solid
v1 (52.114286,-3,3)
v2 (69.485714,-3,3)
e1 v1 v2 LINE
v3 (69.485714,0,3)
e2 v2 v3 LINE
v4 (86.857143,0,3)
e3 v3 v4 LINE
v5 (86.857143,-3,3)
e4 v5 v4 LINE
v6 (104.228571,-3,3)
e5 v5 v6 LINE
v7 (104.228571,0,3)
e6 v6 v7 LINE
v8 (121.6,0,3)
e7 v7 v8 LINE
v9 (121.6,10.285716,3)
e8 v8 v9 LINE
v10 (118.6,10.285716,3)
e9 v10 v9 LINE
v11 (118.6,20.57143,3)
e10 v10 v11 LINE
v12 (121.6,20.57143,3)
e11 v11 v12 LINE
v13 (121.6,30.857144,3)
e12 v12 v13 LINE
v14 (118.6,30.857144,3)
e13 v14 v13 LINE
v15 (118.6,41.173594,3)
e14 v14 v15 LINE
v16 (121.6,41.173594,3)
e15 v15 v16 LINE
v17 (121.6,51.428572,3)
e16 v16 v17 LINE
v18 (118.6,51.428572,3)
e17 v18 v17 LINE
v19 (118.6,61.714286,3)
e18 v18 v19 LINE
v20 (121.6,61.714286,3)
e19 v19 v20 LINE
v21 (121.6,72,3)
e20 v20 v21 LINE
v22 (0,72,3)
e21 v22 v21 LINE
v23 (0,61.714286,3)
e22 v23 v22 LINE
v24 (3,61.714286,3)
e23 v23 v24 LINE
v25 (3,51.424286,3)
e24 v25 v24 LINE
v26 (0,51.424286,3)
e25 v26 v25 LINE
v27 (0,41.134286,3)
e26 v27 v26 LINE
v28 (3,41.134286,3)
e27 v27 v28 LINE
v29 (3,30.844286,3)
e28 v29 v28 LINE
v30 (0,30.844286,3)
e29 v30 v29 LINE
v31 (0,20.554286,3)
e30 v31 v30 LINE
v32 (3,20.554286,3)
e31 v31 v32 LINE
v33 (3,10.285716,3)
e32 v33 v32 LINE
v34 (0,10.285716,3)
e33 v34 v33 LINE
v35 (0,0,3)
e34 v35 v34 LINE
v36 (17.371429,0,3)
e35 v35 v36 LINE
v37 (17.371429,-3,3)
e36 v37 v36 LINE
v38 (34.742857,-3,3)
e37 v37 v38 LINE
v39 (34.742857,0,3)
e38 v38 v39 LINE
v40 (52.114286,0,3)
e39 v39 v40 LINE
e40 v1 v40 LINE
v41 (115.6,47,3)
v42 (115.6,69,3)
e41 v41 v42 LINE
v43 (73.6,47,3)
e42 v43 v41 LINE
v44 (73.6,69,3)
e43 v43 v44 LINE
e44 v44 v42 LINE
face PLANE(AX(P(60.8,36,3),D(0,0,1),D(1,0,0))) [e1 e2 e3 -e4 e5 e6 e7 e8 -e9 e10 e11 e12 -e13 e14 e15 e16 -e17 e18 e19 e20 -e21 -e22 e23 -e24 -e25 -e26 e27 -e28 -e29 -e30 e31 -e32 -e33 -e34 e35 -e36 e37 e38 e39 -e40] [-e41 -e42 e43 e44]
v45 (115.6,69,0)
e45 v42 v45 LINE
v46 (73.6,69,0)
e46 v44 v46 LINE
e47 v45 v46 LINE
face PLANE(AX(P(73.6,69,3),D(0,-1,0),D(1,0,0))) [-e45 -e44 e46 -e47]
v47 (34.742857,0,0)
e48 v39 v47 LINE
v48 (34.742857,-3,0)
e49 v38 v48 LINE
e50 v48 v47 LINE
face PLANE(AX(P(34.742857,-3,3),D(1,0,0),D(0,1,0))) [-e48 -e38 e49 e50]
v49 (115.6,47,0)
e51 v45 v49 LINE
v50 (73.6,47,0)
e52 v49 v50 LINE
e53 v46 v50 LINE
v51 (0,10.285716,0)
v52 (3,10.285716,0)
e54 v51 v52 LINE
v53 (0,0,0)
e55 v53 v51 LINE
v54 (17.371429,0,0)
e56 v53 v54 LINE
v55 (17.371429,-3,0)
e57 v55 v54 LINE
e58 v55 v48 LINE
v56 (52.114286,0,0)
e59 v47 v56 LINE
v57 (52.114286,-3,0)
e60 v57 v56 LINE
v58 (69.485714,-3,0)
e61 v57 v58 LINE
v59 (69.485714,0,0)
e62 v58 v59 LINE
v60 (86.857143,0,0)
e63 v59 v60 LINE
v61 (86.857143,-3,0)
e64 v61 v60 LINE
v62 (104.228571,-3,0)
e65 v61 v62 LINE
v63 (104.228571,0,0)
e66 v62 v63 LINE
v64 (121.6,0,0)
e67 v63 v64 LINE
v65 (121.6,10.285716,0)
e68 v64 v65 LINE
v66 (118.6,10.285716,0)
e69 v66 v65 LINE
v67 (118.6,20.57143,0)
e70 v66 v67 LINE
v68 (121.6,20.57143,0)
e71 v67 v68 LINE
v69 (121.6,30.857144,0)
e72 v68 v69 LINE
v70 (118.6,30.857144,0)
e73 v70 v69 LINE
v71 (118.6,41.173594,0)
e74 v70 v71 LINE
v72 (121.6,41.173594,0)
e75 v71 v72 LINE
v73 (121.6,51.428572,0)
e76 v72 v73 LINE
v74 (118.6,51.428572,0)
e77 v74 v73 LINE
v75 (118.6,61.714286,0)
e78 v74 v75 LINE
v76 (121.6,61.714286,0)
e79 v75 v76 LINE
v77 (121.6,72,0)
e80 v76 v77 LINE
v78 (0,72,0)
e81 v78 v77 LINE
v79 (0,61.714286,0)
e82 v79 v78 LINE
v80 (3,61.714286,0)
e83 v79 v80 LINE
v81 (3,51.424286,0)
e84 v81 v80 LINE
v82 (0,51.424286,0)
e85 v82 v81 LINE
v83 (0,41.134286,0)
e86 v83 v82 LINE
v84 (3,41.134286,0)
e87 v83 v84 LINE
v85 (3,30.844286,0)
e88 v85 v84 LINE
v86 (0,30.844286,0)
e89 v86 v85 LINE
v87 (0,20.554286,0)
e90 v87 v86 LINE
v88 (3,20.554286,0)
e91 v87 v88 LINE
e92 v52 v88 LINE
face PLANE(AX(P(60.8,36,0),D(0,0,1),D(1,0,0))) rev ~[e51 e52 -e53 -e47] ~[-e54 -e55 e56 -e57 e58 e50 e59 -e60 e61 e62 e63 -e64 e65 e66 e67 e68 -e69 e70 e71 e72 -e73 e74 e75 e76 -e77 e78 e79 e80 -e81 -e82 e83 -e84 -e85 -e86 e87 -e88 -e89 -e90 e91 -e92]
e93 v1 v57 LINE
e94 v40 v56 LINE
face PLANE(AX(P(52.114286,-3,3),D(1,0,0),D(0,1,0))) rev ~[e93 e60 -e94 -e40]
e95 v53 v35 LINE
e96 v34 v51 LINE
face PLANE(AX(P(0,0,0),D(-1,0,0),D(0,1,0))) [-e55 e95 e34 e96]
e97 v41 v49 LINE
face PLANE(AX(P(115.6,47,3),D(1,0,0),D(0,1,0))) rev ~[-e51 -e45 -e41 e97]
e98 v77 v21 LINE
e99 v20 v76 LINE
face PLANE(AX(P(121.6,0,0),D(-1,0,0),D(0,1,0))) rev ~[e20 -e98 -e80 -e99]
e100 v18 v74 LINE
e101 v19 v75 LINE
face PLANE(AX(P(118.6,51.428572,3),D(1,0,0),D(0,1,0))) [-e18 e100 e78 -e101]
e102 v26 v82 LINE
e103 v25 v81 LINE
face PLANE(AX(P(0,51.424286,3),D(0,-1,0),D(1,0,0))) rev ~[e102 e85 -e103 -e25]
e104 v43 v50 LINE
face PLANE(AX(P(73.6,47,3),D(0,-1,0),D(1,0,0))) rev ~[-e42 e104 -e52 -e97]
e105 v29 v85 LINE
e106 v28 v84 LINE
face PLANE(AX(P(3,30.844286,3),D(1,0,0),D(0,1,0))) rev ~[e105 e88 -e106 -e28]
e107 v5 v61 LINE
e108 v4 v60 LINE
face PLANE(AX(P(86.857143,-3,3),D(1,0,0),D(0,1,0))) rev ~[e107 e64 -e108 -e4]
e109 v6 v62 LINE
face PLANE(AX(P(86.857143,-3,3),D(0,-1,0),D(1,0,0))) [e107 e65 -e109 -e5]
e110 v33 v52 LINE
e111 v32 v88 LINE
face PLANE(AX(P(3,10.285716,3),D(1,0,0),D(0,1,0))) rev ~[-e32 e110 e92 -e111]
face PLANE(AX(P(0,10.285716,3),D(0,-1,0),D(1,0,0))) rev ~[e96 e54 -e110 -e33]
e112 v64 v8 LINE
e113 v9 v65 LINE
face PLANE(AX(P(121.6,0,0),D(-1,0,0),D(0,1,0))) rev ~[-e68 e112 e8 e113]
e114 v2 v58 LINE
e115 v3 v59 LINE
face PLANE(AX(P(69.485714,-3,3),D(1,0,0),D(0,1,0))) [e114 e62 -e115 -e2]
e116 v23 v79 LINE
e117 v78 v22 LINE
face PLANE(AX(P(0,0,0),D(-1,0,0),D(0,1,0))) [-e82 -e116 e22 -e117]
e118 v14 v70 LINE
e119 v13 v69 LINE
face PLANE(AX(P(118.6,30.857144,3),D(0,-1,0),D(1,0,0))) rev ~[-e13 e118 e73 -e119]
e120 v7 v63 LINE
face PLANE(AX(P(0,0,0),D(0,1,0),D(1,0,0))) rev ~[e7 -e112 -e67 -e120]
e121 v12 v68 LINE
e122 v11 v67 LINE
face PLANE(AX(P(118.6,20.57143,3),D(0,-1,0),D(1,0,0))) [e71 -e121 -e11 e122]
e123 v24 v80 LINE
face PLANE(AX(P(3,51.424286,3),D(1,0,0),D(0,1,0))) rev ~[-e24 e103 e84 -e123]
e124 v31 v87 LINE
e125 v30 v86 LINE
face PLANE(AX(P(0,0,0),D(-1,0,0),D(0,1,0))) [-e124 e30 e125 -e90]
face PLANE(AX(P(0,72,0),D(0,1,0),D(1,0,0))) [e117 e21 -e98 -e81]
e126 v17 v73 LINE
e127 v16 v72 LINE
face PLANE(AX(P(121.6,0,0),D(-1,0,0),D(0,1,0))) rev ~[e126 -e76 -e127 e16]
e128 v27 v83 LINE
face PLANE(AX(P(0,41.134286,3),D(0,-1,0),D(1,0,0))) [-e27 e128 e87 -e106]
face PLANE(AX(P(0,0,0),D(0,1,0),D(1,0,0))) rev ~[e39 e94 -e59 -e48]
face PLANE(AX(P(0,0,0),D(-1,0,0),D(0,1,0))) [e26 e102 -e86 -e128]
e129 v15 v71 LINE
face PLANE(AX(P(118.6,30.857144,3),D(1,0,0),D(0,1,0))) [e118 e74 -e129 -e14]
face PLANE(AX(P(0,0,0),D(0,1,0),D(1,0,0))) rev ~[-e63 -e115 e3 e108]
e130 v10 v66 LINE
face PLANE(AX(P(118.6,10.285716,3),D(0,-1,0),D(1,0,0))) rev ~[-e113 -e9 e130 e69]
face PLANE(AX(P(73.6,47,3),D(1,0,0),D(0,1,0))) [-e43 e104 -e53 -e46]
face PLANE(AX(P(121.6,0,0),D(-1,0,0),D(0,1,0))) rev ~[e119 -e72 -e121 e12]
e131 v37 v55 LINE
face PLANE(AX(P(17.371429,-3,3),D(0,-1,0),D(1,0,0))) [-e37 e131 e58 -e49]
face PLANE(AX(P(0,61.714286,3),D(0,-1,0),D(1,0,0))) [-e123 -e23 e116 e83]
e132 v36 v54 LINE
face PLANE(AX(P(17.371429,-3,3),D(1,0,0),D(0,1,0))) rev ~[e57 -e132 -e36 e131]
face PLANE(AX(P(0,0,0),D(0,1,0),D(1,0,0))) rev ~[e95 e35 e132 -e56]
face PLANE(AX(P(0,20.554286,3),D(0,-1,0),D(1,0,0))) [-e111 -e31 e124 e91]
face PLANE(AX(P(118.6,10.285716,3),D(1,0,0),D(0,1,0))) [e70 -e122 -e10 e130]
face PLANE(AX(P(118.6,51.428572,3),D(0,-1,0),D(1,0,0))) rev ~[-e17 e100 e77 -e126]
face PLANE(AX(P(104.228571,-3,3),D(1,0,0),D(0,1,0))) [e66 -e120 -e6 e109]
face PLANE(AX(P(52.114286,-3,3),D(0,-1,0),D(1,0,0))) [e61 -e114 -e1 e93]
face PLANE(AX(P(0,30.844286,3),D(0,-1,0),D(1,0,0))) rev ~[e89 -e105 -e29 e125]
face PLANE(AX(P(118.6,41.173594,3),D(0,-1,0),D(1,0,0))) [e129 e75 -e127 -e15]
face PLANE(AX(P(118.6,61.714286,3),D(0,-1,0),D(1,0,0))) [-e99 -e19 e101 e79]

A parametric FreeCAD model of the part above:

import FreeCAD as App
import Part
import Sketcher
from FreeCAD import Vector
Q = App.Units.Quantity


def add_polygon(sketch, points):
    """Adds a closed chain of lines whose ends are joined by coincident constraints."""
    first, n = sketch.GeometryCount, len(points)
    for a, b in zip(points, points[1:] + points[:1]):
        sketch.addGeometry(Part.LineSegment(App.Vector(*a, 0), App.Vector(*b, 0)), False)
    for i in range(n):
        sketch.addConstraint(Sketcher.Constraint("Coincident", first + i, 2, first + (i + 1) % n, 1))

doc = App.newDocument("Part")
body = doc.addObject("PartDesign::Body", "Body")

sketch1 = doc.addObject("Sketcher::SketchObject", "Sketch")
body.addObject(sketch1)
sketch1.AttachmentSupport = (doc.XY_Plane, [""])
sketch1.MapMode = "FlatFace"
add_polygon(sketch1, [(0, 72), (0, 0), (122, 0), (122, 72)])
sketch1.addConstraint([
    Sketcher.Constraint("Vertical", 0),
    Sketcher.Constraint("Horizontal", 1),
    Sketcher.Constraint("Vertical", 2),
    Sketcher.Constraint("Horizontal", 3),
    Sketcher.Constraint("Coincident", 0, 2, -1, 1),
    Sketcher.Constraint("DistanceY", 0, 2, 0, 1, Q("72 mm")),
    Sketcher.Constraint("DistanceX", 1, 1, 1, 2, Q("121.6 mm")),
])
pad1 = doc.addObject("PartDesign::Pad", "Pad")
body.addObject(pad1)
pad1.Profile = sketch1
pad1.Length = 3

sketch2 = doc.addObject("Sketcher::SketchObject", "Sketch001")
body.addObject(sketch2)
sketch2.AttachmentSupport = (doc.XY_Plane, [""])
sketch2.MapMode = "FlatFace"
sketch2.AttachmentOffset = App.Placement(Vector(0, 0, 3), App.Rotation())
add_polygon(sketch2, [(74, 69), (74, 47), (116, 47), (116, 69)])
sketch2.addConstraint([
    Sketcher.Constraint("Vertical", 0),
    Sketcher.Constraint("Horizontal", 1),
    Sketcher.Constraint("Vertical", 2),
    Sketcher.Constraint("Horizontal", 3),
    Sketcher.Constraint("DistanceX", 1, 1, 1, 2, Q("42 mm")),
    Sketcher.Constraint("DistanceY", 0, 2, 0, 1, Q("22 mm")),
    Sketcher.Constraint("DistanceY", -1, 1, 0, 2, Q("47 mm")),
    Sketcher.Constraint("DistanceX", -1, 1, 0, 2, Q("73.6 mm")),
])
pocket1 = doc.addObject("PartDesign::Pocket", "Pocket")
body.addObject(pocket1)
pocket1.Profile = sketch2
pocket1.Type = "UpToFirst"

sketch3 = doc.addObject("Sketcher::SketchObject", "Sketch002")
body.addObject(sketch3)
sketch3.AttachmentSupport = (doc.XY_Plane, [""])
sketch3.MapMode = "FlatFace"
sketch3.AttachmentOffset = App.Placement(Vector(0, 0, 3), App.Rotation())
add_polygon(sketch3, [(118.6, 61.7), (118.6, 51.4), (121.6, 51.4), (121.6, 61.7)])
add_polygon(sketch3, [(118.6, 41.2), (118.6, 30.9), (121.6, 30.9), (121.6, 41.2)])
add_polygon(sketch3, [(118.6, 20.6), (118.6, 10.3), (121.6, 10.3), (121.6, 20.6)])
add_polygon(sketch3, [(0, 20.6), (0, 10.3), (3, 10.3), (3, 20.6)])
add_polygon(sketch3, [(0, 41.1), (0, 30.8), (3, 30.8), (3, 41.1)])
add_polygon(sketch3, [(0, 61.7), (0, 51.4), (3, 51.4), (3, 61.7)])
sketch3.addConstraint([
    Sketcher.Constraint("Vertical", 0),
    Sketcher.Constraint("Horizontal", 1),
    Sketcher.Constraint("Vertical", 2),
    Sketcher.Constraint("Horizontal", 3),
    Sketcher.Constraint("Vertical", 4),
    Sketcher.Constraint("Horizontal", 5),
    Sketcher.Constraint("Vertical", 6),
    Sketcher.Constraint("Horizontal", 7),
    Sketcher.Constraint("Vertical", 8),
    Sketcher.Constraint("Horizontal", 9),
    Sketcher.Constraint("Vertical", 10),
    Sketcher.Constraint("Horizontal", 11),
    Sketcher.Constraint("Vertical", 12),
    Sketcher.Constraint("Horizontal", 13),
    Sketcher.Constraint("Vertical", 14),
    Sketcher.Constraint("Horizontal", 15),
    Sketcher.Constraint("Vertical", 16),
    Sketcher.Constraint("Horizontal", 17),
    Sketcher.Constraint("Vertical", 18),
    Sketcher.Constraint("Horizontal", 19),
    Sketcher.Constraint("Vertical", 20),
    Sketcher.Constraint("Horizontal", 21),
    Sketcher.Constraint("Vertical", 22),
    Sketcher.Constraint("Horizontal", 23),
    Sketcher.Constraint("PointOnObject", 12, 2, -2),
    Sketcher.Constraint("PointOnObject", 16, 2, -2),
    Sketcher.Constraint("PointOnObject", 20, 2, -2),
    Sketcher.Constraint("Horizontal", 9, 2, 12, 2),
    Sketcher.Constraint("Horizontal", 3, 2, 22, 2),
    Sketcher.Constraint("Vertical", 3, 2, 4, 2),
    Sketcher.Constraint("Vertical", 2, 2, 5, 2),
    Sketcher.Constraint("Vertical", 7, 2, 8, 2),
    Sketcher.Constraint("Vertical", 6, 2, 9, 2),
    Sketcher.Constraint("Vertical", 14, 2, 17, 2),
    Sketcher.Constraint("Vertical", 18, 2, 21, 2),
    Sketcher.Constraint("Equal", 11, 13),
    Sketcher.Constraint("Equal", 2, 8),
    Sketcher.Constraint("Equal", 18, 20),
    Sketcher.Constraint("DistanceX", 1, 1, 1, 2, Q("3 mm")),
    Sketcher.Constraint("DistanceY", 16, 2, 16, 1, Q("10.29 mm")),
    Sketcher.Constraint("DistanceX", -1, 1, 0, 2, Q("118.6 mm")),
    Sketcher.Constraint("DistanceY", 15, 2, 16, 2, Q("10.29 mm")),
    Sketcher.Constraint("DistanceY", 19, 2, 20, 2, Q("10.29 mm")),
    Sketcher.Constraint("DistanceY", 4, 2, 4, 1, Q("10.31645 mm")),
    Sketcher.Constraint("DistanceY", 12, 2, 12, 1, Q("10.26857 mm")),
    Sketcher.Constraint("DistanceY", 0, 2, 0, 1, Q("10.285714 mm")),
    Sketcher.Constraint("DistanceY", -1, 1, 0, 2, Q("51.428572 mm")),
    Sketcher.Constraint("DistanceY", 4, 2, 3, 2, Q("30.857142 mm")),
])
pocket2 = doc.addObject("PartDesign::Pocket", "Pocket001")
body.addObject(pocket2)
pocket2.Profile = sketch3
pocket2.Type = "ThroughAll"

sketch4 = doc.addObject("Sketcher::SketchObject", "Sketch003")
body.addObject(sketch4)
sketch4.AttachmentSupport = (doc.XY_Plane, [""])
sketch4.MapMode = "FlatFace"
sketch4.AttachmentOffset = App.Placement(Vector(0, 0, 3), App.Rotation())
add_polygon(sketch4, [(86.9, 0), (86.9, -3), (104.2, -3), (104.2, 0)])
add_polygon(sketch4, [(52.1, 0), (52.1, -3), (69.5, -3), (69.5, 0)])
add_polygon(sketch4, [(17.4, 0), (17.4, -3), (34.7, -3), (34.7, 0)])
sketch4.addConstraint([
    Sketcher.Constraint("Vertical", 0),
    Sketcher.Constraint("Horizontal", 1),
    Sketcher.Constraint("Vertical", 2),
    Sketcher.Constraint("Horizontal", 3),
    Sketcher.Constraint("Vertical", 4),
    Sketcher.Constraint("Horizontal", 5),
    Sketcher.Constraint("Vertical", 6),
    Sketcher.Constraint("Horizontal", 7),
    Sketcher.Constraint("Vertical", 8),
    Sketcher.Constraint("Horizontal", 9),
    Sketcher.Constraint("Vertical", 10),
    Sketcher.Constraint("Horizontal", 11),
    Sketcher.Constraint("PointOnObject", 2, 2, -1),
    Sketcher.Constraint("PointOnObject", 6, 2, -1),
    Sketcher.Constraint("PointOnObject", 10, 2, -1),
    Sketcher.Constraint("Horizontal", 1, 2, 4, 2),
    Sketcher.Constraint("Horizontal", 5, 2, 8, 2),
    Sketcher.Constraint("Equal", 3, 5),
    Sketcher.Constraint("Equal", 7, 9),
    Sketcher.Constraint("DistanceY", 0, 2, 0, 1, Q("3 mm")),
    Sketcher.Constraint("DistanceX", 1, 1, 1, 2, Q("17.371429 mm")),
    Sketcher.Constraint("DistanceX", -1, 1, 1, 2, Q("104.228571 mm")),
    Sketcher.Constraint("DistanceX", -1, 1, 8, 2, Q("17.371429 mm")),
    Sketcher.Constraint("DistanceX", 5, 2, 0, 2, Q("17.371429 mm")),
])
pad2 = doc.addObject("PartDesign::Pad", "Pad001")
body.addObject(pad2)
pad2.Profile = sketch4
pad2.Length = 3
pad2.Reversed = True

doc.recompute()
